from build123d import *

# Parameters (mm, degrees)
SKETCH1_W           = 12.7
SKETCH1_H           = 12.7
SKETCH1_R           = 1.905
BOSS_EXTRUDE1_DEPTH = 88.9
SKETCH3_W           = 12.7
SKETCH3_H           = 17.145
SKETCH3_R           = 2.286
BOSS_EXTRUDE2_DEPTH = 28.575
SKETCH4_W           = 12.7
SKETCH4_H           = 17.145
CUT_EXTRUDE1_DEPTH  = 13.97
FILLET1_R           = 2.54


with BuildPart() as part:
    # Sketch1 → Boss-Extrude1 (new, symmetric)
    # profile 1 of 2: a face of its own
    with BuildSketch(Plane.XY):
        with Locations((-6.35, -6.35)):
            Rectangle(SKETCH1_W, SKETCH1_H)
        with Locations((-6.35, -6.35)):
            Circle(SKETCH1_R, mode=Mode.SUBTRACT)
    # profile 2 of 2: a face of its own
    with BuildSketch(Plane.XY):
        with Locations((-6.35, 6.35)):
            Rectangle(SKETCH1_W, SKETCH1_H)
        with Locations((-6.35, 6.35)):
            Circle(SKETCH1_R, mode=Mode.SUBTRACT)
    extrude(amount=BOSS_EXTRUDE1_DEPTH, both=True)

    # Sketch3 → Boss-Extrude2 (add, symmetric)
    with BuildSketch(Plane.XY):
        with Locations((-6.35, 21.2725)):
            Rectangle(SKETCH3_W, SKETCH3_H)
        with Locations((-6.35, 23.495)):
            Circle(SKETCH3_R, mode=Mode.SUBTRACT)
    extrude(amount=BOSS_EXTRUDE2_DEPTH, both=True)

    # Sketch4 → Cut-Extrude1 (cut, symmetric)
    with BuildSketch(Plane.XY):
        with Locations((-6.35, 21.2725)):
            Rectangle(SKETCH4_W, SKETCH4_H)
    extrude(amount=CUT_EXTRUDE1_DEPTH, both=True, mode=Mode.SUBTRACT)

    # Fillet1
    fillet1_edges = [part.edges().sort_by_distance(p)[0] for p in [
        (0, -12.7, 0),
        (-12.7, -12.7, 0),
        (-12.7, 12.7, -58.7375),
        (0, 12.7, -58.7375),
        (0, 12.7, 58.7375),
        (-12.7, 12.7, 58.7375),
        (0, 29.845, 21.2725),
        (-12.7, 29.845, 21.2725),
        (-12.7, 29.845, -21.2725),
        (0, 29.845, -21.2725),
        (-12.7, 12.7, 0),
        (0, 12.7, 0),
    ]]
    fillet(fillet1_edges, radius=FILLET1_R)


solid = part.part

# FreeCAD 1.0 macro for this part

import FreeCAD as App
import Part
import Sketcher
Q = App.Units.Quantity


def edges_at(feature, points):
    """Names of the edges that pass closest to the given points."""
    edges = feature.Shape.Edges
    near = lambda p: min(range(len(edges)), key=lambda i: edges[i].distToShape(Part.Vertex(*p))[0])
    return sorted({f"Edge{near(p) + 1}" for p in points})


def add_polygon(sketch, points):
    """Adds a closed chain of lines whose ends are joined by coincident constraints."""
    first, n = sketch.GeometryCount, len(points)
    for a, b in zip(points, points[1:] + points[:1]):
        sketch.addGeometry(Part.LineSegment(App.Vector(*a, 0), App.Vector(*b, 0)), False)
    for i in range(n):
        sketch.addConstraint(Sketcher.Constraint("Coincident", first + i, 2, first + (i + 1) % n, 1))

doc = App.newDocument("Part")
body = doc.addObject("PartDesign::Body", "Body")

sketch1 = doc.addObject("Sketcher::SketchObject", "Sketch")
body.addObject(sketch1)
sketch1.AttachmentSupport = (doc.XY_Plane, [""])
sketch1.MapMode = "FlatFace"
add_polygon(sketch1, [(-12.7, -12.7), (0, -12.7), (0, 12.7), (-12.7, 12.7)])
sketch1.addGeometry(Part.Circle(App.Vector(-6.35, -6.35, 0), App.Vector(0, 0, 1), 1.905), False)
sketch1.addGeometry(Part.Circle(App.Vector(-6.35, 6.35, 0), App.Vector(0, 0, 1), 1.905), False)
sketch1.addConstraint([
    Sketcher.Constraint("Horizontal", 0),
    Sketcher.Constraint("Vertical", 1),
    Sketcher.Constraint("Horizontal", 2),
    Sketcher.Constraint("Vertical", 3),
    Sketcher.Constraint("Equal", 4, 5),
    Sketcher.Constraint("Symmetric", 0, 2, 1, 2, -1, 1),
    Sketcher.Constraint("Symmetric", 4, 3, 5, 3, -1),
    Sketcher.Constraint("Diameter", 4, Q("0.15 in")),
    Sketcher.Constraint("DistanceY", 1, 1, 1, 2, Q("1 in")),
    Sketcher.Constraint("DistanceX", 0, 1, 0, 2, Q("0.5 in")),
    Sketcher.Constraint("DistanceY", 4, 3, 5, 3, Q("0.5 in")),
    Sketcher.Constraint("DistanceX", 4, 3, -1, 1, Q("0.25 in")),
])
pad1 = doc.addObject("PartDesign::Pad", "Pad")
body.addObject(pad1)
pad1.Profile = sketch1
pad1.Length = Q("7 in")
pad1.Midplane = True

sketch2 = doc.addObject("Sketcher::SketchObject", "Sketch001")
body.addObject(sketch2)
sketch2.AttachmentSupport = (doc.XY_Plane, [""])
sketch2.MapMode = "FlatFace"
add_polygon(sketch2, [(-12.7, 29.845), (-12.7, 12.7), (0, 12.7), (0, 29.845)])
sketch2.addGeometry(Part.Circle(App.Vector(-6.35, 23.495, 0), App.Vector(0, 0, 1), 2.286), False)
sketch2.addConstraint([
    Sketcher.Constraint("Vertical", 0),
    Sketcher.Constraint("Horizontal", 1),
    Sketcher.Constraint("Vertical", 2),
    Sketcher.Constraint("Horizontal", 3),
    Sketcher.Constraint("PointOnObject", 1, 2, -2),
    Sketcher.Constraint("Diameter", 4, Q("0.18 in")),
    Sketcher.Constraint("DistanceX", 1, 1, 1, 2, Q("0.5 in")),
    Sketcher.Constraint("DistanceY", -1, 1, 0, 2, Q("0.5 in")),
    Sketcher.Constraint("DistanceY", 0, 2, 0, 1, Q("0.675 in")),
    Sketcher.Constraint("DistanceX", 4, 3, -1, 1, Q("0.25 in")),
    Sketcher.Constraint("DistanceY", 4, 3, 2, 2, Q("0.25 in")),
])
pad2 = doc.addObject("PartDesign::Pad", "Pad001")
body.addObject(pad2)
pad2.Profile = sketch2
pad2.Length = Q("2.25 in")
pad2.Midplane = True

sketch3 = doc.addObject("Sketcher::SketchObject", "Sketch002")
body.addObject(sketch3)
sketch3.AttachmentSupport = (doc.XY_Plane, [""])
sketch3.MapMode = "FlatFace"
add_polygon(sketch3, [(-12.7, 29.845), (-12.7, 12.7), (0, 12.7), (0, 29.845)])
sketch3.addConstraint([
    Sketcher.Constraint("Vertical", 0),
    Sketcher.Constraint("Horizontal", 1),
    Sketcher.Constraint("Vertical", 2),
    Sketcher.Constraint("Horizontal", 3),
    Sketcher.Constraint("PointOnObject", 1, 2, -2),
    Sketcher.Constraint("DistanceX", 1, 1, 1, 2, Q("0.5 in")),
    Sketcher.Constraint("DistanceY", -1, 1, 0, 2, Q("0.5 in")),
    Sketcher.Constraint("DistanceY", 0, 2, 0, 1, Q("0.675 in")),
])
pocket1 = doc.addObject("PartDesign::Pocket", "Pocket")
body.addObject(pocket1)
pocket1.Profile = sketch3
pocket1.Length = Q("1.1 in")
pocket1.Midplane = True
doc.recompute()

fillet = doc.addObject("PartDesign::Fillet", "Fillet")
body.addObject(fillet)
fillet.Base = (pocket1, edges_at(pocket1, [
    (0, -12.7, 0),
    (-12.7, -12.7, 0),
    (-12.7, 12.7, -58.737),
    (0, 12.7, -58.737),
    (0, 12.7, 58.737),
    (-12.7, 12.7, 58.737),
    (0, 29.845, 21.273),
    (-12.7, 29.845, 21.273),
    (-12.7, 29.845, -21.273),
    (0, 29.845, -21.273),
    (-12.7, 12.7, 0),
    (0, 12.7, 0),
]))
fillet.Radius = Q("0.1 in")

doc.recompute()
